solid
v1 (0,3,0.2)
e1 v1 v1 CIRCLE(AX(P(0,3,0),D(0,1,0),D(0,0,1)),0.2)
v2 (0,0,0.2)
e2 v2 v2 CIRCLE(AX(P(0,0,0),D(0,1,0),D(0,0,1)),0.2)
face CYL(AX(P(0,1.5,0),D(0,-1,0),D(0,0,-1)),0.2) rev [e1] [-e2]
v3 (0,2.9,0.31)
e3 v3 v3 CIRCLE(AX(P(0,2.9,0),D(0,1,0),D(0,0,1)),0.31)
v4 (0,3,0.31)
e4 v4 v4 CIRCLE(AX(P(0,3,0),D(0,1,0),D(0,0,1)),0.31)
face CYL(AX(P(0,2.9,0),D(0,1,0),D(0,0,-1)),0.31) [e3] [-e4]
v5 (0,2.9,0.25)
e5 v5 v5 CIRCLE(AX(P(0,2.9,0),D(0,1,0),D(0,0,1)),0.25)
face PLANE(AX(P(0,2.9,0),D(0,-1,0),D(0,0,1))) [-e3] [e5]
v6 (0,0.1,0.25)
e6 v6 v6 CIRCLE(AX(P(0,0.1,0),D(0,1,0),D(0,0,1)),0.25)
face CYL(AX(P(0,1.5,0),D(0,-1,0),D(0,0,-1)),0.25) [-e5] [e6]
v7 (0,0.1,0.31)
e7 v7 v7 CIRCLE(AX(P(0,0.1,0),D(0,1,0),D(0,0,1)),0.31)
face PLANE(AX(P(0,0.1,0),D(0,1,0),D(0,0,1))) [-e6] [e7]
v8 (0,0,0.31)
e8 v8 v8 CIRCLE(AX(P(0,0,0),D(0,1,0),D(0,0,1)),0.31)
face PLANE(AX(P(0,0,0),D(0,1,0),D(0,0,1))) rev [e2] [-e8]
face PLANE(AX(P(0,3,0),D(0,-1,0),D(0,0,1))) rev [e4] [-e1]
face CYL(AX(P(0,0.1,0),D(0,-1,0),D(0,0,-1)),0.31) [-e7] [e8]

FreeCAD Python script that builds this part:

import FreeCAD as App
import Part
import Sketcher

V = App.Vector

doc = App.newDocument("Part")
body = doc.addObject("PartDesign::Body", "Body")

# Sketch on XZ plane
sketch1 = doc.addObject("Sketcher::SketchObject", "Sketch")
body.addObject(sketch1)
sketch1.AttachmentSupport = (doc.XZ_Plane, [""])
sketch1.MapMode = "FlatFace"
sketch1.addGeometry([
    Part.Circle(V(0, 0, 0), V(0, 0, 1), 0.25),
    Part.Circle(V(0, 0, 0), V(0, 0, 1), 0.2),
], False)
sketch1.addConstraint([
    Sketcher.Constraint("Coincident", 0, 3, -1, 1),
    Sketcher.Constraint("Coincident", 1, 3, -1, 1),
    Sketcher.Constraint("Diameter", 0, 0.5),
    Sketcher.Constraint("Diameter", 1, 0.4),
])

# Sketch on XY plane
sketch2 = doc.addObject("Sketcher::SketchObject", "Sketch001")
body.addObject(sketch2)
sketch2.AttachmentSupport = (doc.XY_Plane, [""])
sketch2.MapMode = "FlatFace"
sketch2.addGeometry(Part.LineSegment(V(0, 0, 0), V(0, 1.5, 0)), False)
sketch2.addConstraint([
    Sketcher.Constraint("Vertical", 0),
    Sketcher.Constraint("Coincident", 0, 1, -1, 1),
    Sketcher.Constraint("DistanceY", 0, 1, 0, 2, 1.5),
])
doc.recompute()

additivepipe = doc.addObject("PartDesign::AdditivePipe", "AdditivePipe")
body.addObject(additivepipe)
additivepipe.Profile = sketch1
additivepipe.Spine = (sketch2, ["Edge1"])

# Sketch on XZ plane
sketch3 = doc.addObject("Sketcher::SketchObject", "Sketch002")
body.addObject(sketch3)
sketch3.AttachmentSupport = (doc.XZ_Plane, [""])
sketch3.MapMode = "FlatFace"
sketch3.addGeometry([
    Part.Circle(V(0, 0, 0), V(0, 0, 1), 0.31),
    Part.Circle(V(0, 0, 0), V(0, 0, 1), 0.21),
], False)
sketch3.addConstraint([
    Sketcher.Constraint("Coincident", 0, 3, -1, 1),
    Sketcher.Constraint("Coincident", 1, 3, -1, 1),
    Sketcher.Constraint("Diameter", 0, 0.62),
    Sketcher.Constraint("Diameter", 1, 0.42),
])

# Sketch on XY plane
sketch4 = doc.addObject("Sketcher::SketchObject", "Sketch003")
body.addObject(sketch4)
sketch4.AttachmentSupport = (doc.XY_Plane, [""])
sketch4.MapMode = "FlatFace"
sketch4.addGeometry(Part.LineSegment(V(0, 0, 0), V(0, 0.1, 0)), False)
sketch4.addConstraint([
    Sketcher.Constraint("Vertical", 0),
    Sketcher.Constraint("Coincident", 0, 1, -1, 1),
    Sketcher.Constraint("DistanceY", 0, 1, 0, 2, 0.1),
])
doc.recompute()

additivepipe2 = doc.addObject("PartDesign::AdditivePipe", "AdditivePipe001")
body.addObject(additivepipe2)
additivepipe2.Profile = sketch3
additivepipe2.Spine = (sketch4, ["Edge1"])
body2 = doc.addObject("PartDesign::Body", "Body001")
doc.recompute()

body2.BaseFeature = body
doc.recompute()

mirroring = doc.addObject("Part::Mirroring", "Mirroring")
mirroring.Source = body
mirroring.Base = V(0, 1.5, 0)
mirroring.Normal = V(0, 1, 0)
body3 = doc.addObject("PartDesign::Body", "Body002")
body3.BaseFeature = mirroring
boolean = doc.addObject("PartDesign::Boolean", "Boolean")
body2.addObject(boolean)
boolean.Type = "Fuse"
boolean.addObjects([body3])
doc.recompute()
mirroring.Visibility = False

doc.recompute()
